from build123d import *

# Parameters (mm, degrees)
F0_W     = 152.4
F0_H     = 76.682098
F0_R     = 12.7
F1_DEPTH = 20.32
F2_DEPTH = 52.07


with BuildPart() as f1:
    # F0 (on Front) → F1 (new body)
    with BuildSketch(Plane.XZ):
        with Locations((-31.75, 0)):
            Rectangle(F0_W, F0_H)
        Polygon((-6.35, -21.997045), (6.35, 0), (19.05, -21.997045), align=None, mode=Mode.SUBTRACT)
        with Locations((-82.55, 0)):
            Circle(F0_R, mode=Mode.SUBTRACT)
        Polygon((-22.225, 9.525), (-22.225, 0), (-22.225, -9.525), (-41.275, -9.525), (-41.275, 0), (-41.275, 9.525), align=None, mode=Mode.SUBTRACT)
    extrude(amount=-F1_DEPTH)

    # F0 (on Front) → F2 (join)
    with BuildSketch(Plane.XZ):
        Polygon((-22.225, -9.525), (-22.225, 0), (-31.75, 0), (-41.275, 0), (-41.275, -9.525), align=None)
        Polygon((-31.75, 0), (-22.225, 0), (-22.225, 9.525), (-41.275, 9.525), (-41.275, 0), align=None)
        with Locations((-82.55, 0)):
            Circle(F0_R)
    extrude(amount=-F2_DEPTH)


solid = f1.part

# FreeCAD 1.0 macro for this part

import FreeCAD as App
import Part
import Sketcher
from FreeCAD import Vector
Q = App.Units.Quantity

doc = App.newDocument("Part")
body = doc.addObject("PartDesign::Body", "Body")

# Sketch on XZ plane
sketch1 = body.newObject("Sketcher::SketchObject", "Sketch")
sketch1.AttachmentSupport = (doc.getObject("XZ_Plane"), [""])
sketch1.MapMode = "FlatFace"
sketch1.addGeometry(Part.LineSegment(Vector(-108, 38, 0), Vector(-108, -38, 0)), False)
sketch1.addGeometry(Part.LineSegment(Vector(-108, -38, 0), Vector(44, -38, 0)), False)
sketch1.addGeometry(Part.LineSegment(Vector(44, -38, 0), Vector(44, 38, 0)), False)
sketch1.addGeometry(Part.LineSegment(Vector(44, 38, 0), Vector(-108, 38, 0)), False)
sketch1.addGeometry(Part.LineSegment(Vector(19, -22, 0), Vector(-6, -22, 0)), False)
sketch1.addGeometry(Part.LineSegment(Vector(-6, -22, 0), Vector(6, 0, 0)), False)
sketch1.addGeometry(Part.LineSegment(Vector(6, 0, 0), Vector(19, -22, 0)), False)
sketch1.addGeometry(Part.Circle(Vector(-83, 0, 0), Vector(0, 0, 1), 13), False)
sketch1.addGeometry(Part.LineSegment(Vector(-41, 10, 0), Vector(-22, 10, 0)), False)
sketch1.addGeometry(Part.LineSegment(Vector(-22, 10, 0), Vector(-22, -10, 0)), False)
sketch1.addGeometry(Part.LineSegment(Vector(-22, -10, 0), Vector(-41, -10, 0)), False)
sketch1.addGeometry(Part.LineSegment(Vector(-41, -10, 0), Vector(-41, 10, 0)), False)
sketch1.addConstraint(Sketcher.Constraint("Coincident", 0, 2, 1, 1))
sketch1.addConstraint(Sketcher.Constraint("Coincident", 1, 2, 2, 1))
sketch1.addConstraint(Sketcher.Constraint("Coincident", 2, 2, 3, 1))
sketch1.addConstraint(Sketcher.Constraint("Coincident", 3, 2, 0, 1))
sketch1.addConstraint(Sketcher.Constraint("Coincident", 4, 2, 5, 1))
sketch1.addConstraint(Sketcher.Constraint("Coincident", 5, 2, 6, 1))
sketch1.addConstraint(Sketcher.Constraint("Coincident", 6, 2, 4, 1))
sketch1.addConstraint(Sketcher.Constraint("Coincident", 8, 2, 9, 1))
sketch1.addConstraint(Sketcher.Constraint("Coincident", 9, 2, 10, 1))
sketch1.addConstraint(Sketcher.Constraint("Coincident", 10, 2, 11, 1))
sketch1.addConstraint(Sketcher.Constraint("Coincident", 11, 2, 8, 1))
sketch1.addConstraint(Sketcher.Constraint("Vertical", 0))
sketch1.addConstraint(Sketcher.Constraint("Horizontal", 1))
sketch1.addConstraint(Sketcher.Constraint("Vertical", 2))
sketch1.addConstraint(Sketcher.Constraint("Horizontal", 3))
sketch1.addConstraint(Sketcher.Constraint("Horizontal", 4))
sketch1.addConstraint(Sketcher.Constraint("Horizontal", 8))
sketch1.addConstraint(Sketcher.Constraint("Vertical", 9))
sketch1.addConstraint(Sketcher.Constraint("Horizontal", 10))
sketch1.addConstraint(Sketcher.Constraint("Vertical", 11))
sketch1.addConstraint(Sketcher.Constraint("PointOnObject", 7, 3, -1))
sketch1.addConstraint(Sketcher.Constraint("PointOnObject", 5, 2, -1))
sketch1.addConstraint(Sketcher.Constraint("Equal", 10, 9))
sketch1.addConstraint(Sketcher.Constraint("Equal", 5, 6))
sketch1.addConstraint(Sketcher.Constraint("Diameter", 7, Q("1 in")))
sketch1.addConstraint(Sketcher.Constraint("DistanceX", 1, 1, 1, 2, Q("6 in")))
sketch1.addConstraint(Sketcher.Constraint("DistanceX", 4, 2, 4, 1, Q("1 in")))
sketch1.addConstraint(Sketcher.Constraint("Distance", 5, Q("1 in")))
sketch1.addConstraint(Sketcher.Constraint("DistanceX", 0, 2, 7, 3, Q("1 in")))
sketch1.addConstraint(Sketcher.Constraint("DistanceX", 4, 2, 1, 2, Q("2 in")))
sketch1.addConstraint(Sketcher.Constraint("DistanceX", 8, 1, 8, 2, Q("0.75 in")))
sketch1.addConstraint(Sketcher.Constraint("DistanceX", 7, 3, -1, 1, Q("3.25 in")))
sketch1.addConstraint(Sketcher.Constraint("DistanceX", 8, 2, -1, 1, Q("0.875 in")))
sketch1.addConstraint(Sketcher.Constraint("DistanceY", -1, 1, 8, 2, Q("0.375 in")))
sketch1.addConstraint(Sketcher.Constraint("DistanceY", 0, 2, 0, 1, 76.682098))
sketch1.addConstraint(Sketcher.Constraint("DistanceY", 0, 2, -1, 1, 38.341049))
pad1 = body.newObject("PartDesign::Pad", "Pad")
pad1.Profile = sketch1
pad1.Length = Q("0.8 in")
pad1.Reversed = True

# Sketch on XZ plane
sketch2 = body.newObject("Sketcher::SketchObject", "Sketch001")
sketch2.AttachmentSupport = (doc.getObject("XZ_Plane"), [""])
sketch2.MapMode = "FlatFace"
sketch2.addGeometry(Part.LineSegment(Vector(-22, -10, 0), Vector(-22, 10, 0)), False)
sketch2.addGeometry(Part.LineSegment(Vector(-22, 10, 0), Vector(-41, 10, 0)), False)
sketch2.addGeometry(Part.LineSegment(Vector(-41, 10, 0), Vector(-41, -10, 0)), False)
sketch2.addGeometry(Part.LineSegment(Vector(-41, -10, 0), Vector(-22, -10, 0)), False)
sketch2.addGeometry(Part.Circle(Vector(-83, 0, 0), Vector(0, 0, 1), 13), False)
sketch2.addConstraint(Sketcher.Constraint("Coincident", 0, 2, 1, 1))
sketch2.addConstraint(Sketcher.Constraint("Coincident", 1, 2, 2, 1))
sketch2.addConstraint(Sketcher.Constraint("Coincident", 2, 2, 3, 1))
sketch2.addConstraint(Sketcher.Constraint("Coincident", 3, 2, 0, 1))
sketch2.addConstraint(Sketcher.Constraint("Vertical", 0))
sketch2.addConstraint(Sketcher.Constraint("Horizontal", 1))
sketch2.addConstraint(Sketcher.Constraint("Vertical", 2))
sketch2.addConstraint(Sketcher.Constraint("Horizontal", 3))
sketch2.addConstraint(Sketcher.Constraint("PointOnObject", 4, 3, -1))
sketch2.addConstraint(Sketcher.Constraint("Equal", 3, 0))
sketch2.addConstraint(Sketcher.Constraint("Diameter", 4, Q("1 in")))
sketch2.addConstraint(Sketcher.Constraint("DistanceX", 1, 2, 1, 1, Q("0.75 in")))
sketch2.addConstraint(Sketcher.Constraint("DistanceX", 4, 3, -1, 1, Q("3.25 in")))
sketch2.addConstraint(Sketcher.Constraint("DistanceX", 0, 2, -1, 1, Q("0.875 in")))
sketch2.addConstraint(Sketcher.Constraint("DistanceY", -1, 1, 0, 2, Q("0.375 in")))
pad2 = body.newObject("PartDesign::Pad", "Pad001")
pad2.Profile = sketch2
pad2.Length = Q("2.05 in")
pad2.Reversed = True

doc.recompute()
